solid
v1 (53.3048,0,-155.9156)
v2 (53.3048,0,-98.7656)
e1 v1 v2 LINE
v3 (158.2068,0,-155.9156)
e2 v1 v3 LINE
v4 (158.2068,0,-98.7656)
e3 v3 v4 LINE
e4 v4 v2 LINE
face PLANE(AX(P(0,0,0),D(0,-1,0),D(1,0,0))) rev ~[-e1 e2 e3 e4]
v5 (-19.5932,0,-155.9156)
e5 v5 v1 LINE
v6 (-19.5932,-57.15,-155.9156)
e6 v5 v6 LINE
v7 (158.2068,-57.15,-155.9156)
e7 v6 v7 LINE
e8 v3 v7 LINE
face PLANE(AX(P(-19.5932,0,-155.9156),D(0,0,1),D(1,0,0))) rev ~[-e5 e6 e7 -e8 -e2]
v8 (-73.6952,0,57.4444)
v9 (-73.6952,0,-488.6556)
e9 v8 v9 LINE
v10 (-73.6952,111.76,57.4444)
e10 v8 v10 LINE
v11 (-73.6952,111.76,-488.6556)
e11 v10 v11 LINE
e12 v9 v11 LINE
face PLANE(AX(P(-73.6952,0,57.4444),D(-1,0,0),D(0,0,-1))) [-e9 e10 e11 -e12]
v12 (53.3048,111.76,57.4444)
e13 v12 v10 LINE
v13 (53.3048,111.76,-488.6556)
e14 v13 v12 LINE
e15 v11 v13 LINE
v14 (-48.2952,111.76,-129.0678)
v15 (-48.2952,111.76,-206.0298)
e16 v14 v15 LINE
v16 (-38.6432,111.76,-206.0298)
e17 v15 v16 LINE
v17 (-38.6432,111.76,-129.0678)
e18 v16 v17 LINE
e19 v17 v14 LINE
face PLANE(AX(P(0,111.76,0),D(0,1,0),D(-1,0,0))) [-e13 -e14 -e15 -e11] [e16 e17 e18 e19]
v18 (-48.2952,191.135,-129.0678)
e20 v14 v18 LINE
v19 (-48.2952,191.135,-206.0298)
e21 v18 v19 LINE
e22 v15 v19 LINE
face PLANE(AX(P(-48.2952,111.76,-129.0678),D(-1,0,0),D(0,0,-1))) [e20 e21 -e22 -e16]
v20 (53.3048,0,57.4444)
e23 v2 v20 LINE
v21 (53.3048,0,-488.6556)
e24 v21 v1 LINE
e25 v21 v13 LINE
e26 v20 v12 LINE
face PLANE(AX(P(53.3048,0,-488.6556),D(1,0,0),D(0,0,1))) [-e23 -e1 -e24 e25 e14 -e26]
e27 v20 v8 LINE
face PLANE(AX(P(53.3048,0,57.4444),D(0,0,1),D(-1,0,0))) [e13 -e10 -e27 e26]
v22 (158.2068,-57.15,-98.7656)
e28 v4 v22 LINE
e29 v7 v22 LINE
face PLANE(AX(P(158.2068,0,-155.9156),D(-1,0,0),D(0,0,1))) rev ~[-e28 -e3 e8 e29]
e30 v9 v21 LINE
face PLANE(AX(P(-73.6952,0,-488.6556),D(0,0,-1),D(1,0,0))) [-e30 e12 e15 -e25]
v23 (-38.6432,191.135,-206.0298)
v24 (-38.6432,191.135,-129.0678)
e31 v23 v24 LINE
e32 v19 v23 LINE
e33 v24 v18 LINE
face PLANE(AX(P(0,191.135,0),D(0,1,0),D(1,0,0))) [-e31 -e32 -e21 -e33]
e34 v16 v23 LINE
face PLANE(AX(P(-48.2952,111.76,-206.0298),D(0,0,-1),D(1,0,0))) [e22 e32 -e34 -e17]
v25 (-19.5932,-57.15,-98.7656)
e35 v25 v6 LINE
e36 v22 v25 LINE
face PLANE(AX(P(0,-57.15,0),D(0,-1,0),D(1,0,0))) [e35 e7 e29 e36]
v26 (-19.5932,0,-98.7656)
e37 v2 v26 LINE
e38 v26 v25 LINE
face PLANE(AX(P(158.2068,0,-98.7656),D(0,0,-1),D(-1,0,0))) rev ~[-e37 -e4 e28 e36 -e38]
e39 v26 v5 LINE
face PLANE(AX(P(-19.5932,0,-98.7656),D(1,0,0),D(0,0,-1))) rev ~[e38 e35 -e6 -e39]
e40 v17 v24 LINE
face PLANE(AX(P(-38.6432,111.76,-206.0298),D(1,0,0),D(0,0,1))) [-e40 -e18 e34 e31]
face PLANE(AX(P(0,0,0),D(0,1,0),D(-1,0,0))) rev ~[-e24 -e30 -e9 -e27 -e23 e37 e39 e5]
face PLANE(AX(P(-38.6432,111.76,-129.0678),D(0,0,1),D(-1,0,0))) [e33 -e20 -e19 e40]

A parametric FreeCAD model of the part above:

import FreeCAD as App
import Part
import Sketcher
Q = App.Units.Quantity

doc = App.newDocument("Part")
body = doc.addObject("PartDesign::Body", "Body")

# Sketch on XZ plane
sketch1 = body.newObject("Sketcher::SketchObject", "Sketch")
sketch1.AttachmentSupport = (doc.getObject("XZ_Plane"), [""])
sketch1.MapMode = "FlatFace"
sketch1.addGeometry(Part.LineSegment(App.Vector(-74, 57, 0), App.Vector(53, 57, 0)), False)
sketch1.addGeometry(Part.LineSegment(App.Vector(53, 57, 0), App.Vector(53, -489, 0)), False)
sketch1.addGeometry(Part.LineSegment(App.Vector(53, -489, 0), App.Vector(-74, -489, 0)), False)
sketch1.addGeometry(Part.LineSegment(App.Vector(-74, -489, 0), App.Vector(-74, 57, 0)), False)
sketch1.addConstraint(Sketcher.Constraint("Coincident", 0, 2, 1, 1))
sketch1.addConstraint(Sketcher.Constraint("Coincident", 1, 2, 2, 1))
sketch1.addConstraint(Sketcher.Constraint("Coincident", 2, 2, 3, 1))
sketch1.addConstraint(Sketcher.Constraint("Coincident", 3, 2, 0, 1))
sketch1.addConstraint(Sketcher.Constraint("Horizontal", 0))
sketch1.addConstraint(Sketcher.Constraint("Vertical", 1))
sketch1.addConstraint(Sketcher.Constraint("Horizontal", 2))
sketch1.addConstraint(Sketcher.Constraint("Vertical", 3))
sketch1.addConstraint(Sketcher.Constraint("DistanceX", 0, 1, 0, 2, Q("5 in")))
sketch1.addConstraint(Sketcher.Constraint("DistanceY", 1, 2, 1, 1, Q("21.5 in")))
sketch1.addConstraint(Sketcher.Constraint("DistanceY", -1, 1, 0, 2, Q("2.2616 in")))
sketch1.addConstraint(Sketcher.Constraint("DistanceX", -1, 1, 0, 2, Q("53.3048 mm")))
pad1 = body.newObject("PartDesign::Pad", "Pad")
pad1.Profile = sketch1
pad1.Length = Q("4.4 in")
pad1.Reversed = True

# Sketch on XZ plane
sketch2 = body.newObject("Sketcher::SketchObject", "Sketch001")
sketch2.AttachmentSupport = (doc.getObject("XZ_Plane"), [""])
sketch2.MapMode = "FlatFace"
sketch2.AttachmentOffset = App.Placement(App.Vector(0, 0, -4.4 * 25.4), App.Rotation())
sketch2.addGeometry(Part.LineSegment(App.Vector(-48, -129, 0), App.Vector(-39, -129, 0)), False)
sketch2.addGeometry(Part.LineSegment(App.Vector(-39, -129, 0), App.Vector(-39, -206, 0)), False)
sketch2.addGeometry(Part.LineSegment(App.Vector(-39, -206, 0), App.Vector(-48, -206, 0)), False)
sketch2.addGeometry(Part.LineSegment(App.Vector(-48, -206, 0), App.Vector(-48, -129, 0)), False)
sketch2.addConstraint(Sketcher.Constraint("Coincident", 0, 2, 1, 1))
sketch2.addConstraint(Sketcher.Constraint("Coincident", 1, 2, 2, 1))
sketch2.addConstraint(Sketcher.Constraint("Coincident", 2, 2, 3, 1))
sketch2.addConstraint(Sketcher.Constraint("Coincident", 3, 2, 0, 1))
sketch2.addConstraint(Sketcher.Constraint("Horizontal", 0))
sketch2.addConstraint(Sketcher.Constraint("Vertical", 1))
sketch2.addConstraint(Sketcher.Constraint("Horizontal", 2))
sketch2.addConstraint(Sketcher.Constraint("Vertical", 3))
sketch2.addConstraint(Sketcher.Constraint("DistanceX", 0, 1, 0, 2, Q("0.38 in")))
sketch2.addConstraint(Sketcher.Constraint("DistanceY", 1, 2, 1, 1, Q("3.03 in")))
sketch2.addConstraint(Sketcher.Constraint("DistanceY", 0, 2, -1, 1, Q("5.0814 in")))
sketch2.addConstraint(Sketcher.Constraint("DistanceX", 0, 2, -1, 1, Q("38.6432 mm")))
pad2 = body.newObject("PartDesign::Pad", "Pad001")
pad2.Profile = sketch2
pad2.Length = Q("3.125 in")
pad2.Reversed = True

# Sketch on XZ plane
sketch3 = body.newObject("Sketcher::SketchObject", "Sketch002")
sketch3.AttachmentSupport = (doc.getObject("XZ_Plane"), [""])
sketch3.MapMode = "FlatFace"
sketch3.addGeometry(Part.LineSegment(App.Vector(-20, -99, 0), App.Vector(-20, -156, 0)), False)
sketch3.addGeometry(Part.LineSegment(App.Vector(-20, -156, 0), App.Vector(158, -156, 0)), False)
sketch3.addGeometry(Part.LineSegment(App.Vector(158, -156, 0), App.Vector(158, -99, 0)), False)
sketch3.addGeometry(Part.LineSegment(App.Vector(158, -99, 0), App.Vector(-20, -99, 0)), False)
sketch3.addConstraint(Sketcher.Constraint("Coincident", 0, 2, 1, 1))
sketch3.addConstraint(Sketcher.Constraint("Coincident", 1, 2, 2, 1))
sketch3.addConstraint(Sketcher.Constraint("Coincident", 2, 2, 3, 1))
sketch3.addConstraint(Sketcher.Constraint("Coincident", 3, 2, 0, 1))
sketch3.addConstraint(Sketcher.Constraint("Vertical", 0))
sketch3.addConstraint(Sketcher.Constraint("Horizontal", 1))
sketch3.addConstraint(Sketcher.Constraint("Vertical", 2))
sketch3.addConstraint(Sketcher.Constraint("Horizontal", 3))
sketch3.addConstraint(Sketcher.Constraint("DistanceX", 1, 1, 1, 2, Q("7 in")))
sketch3.addConstraint(Sketcher.Constraint("DistanceY", 0, 2, 0, 1, Q("2.25 in")))
sketch3.addConstraint(Sketcher.Constraint("DistanceY", 0, 2, -1, 1, Q("6.1384 in")))
sketch3.addConstraint(Sketcher.Constraint("DistanceX", 0, 2, -1, 1, Q("19.5932 mm")))
pad3 = body.newObject("PartDesign::Pad", "Pad002")
pad3.Profile = sketch3
pad3.Length = Q("2.25 in")

doc.recompute()
